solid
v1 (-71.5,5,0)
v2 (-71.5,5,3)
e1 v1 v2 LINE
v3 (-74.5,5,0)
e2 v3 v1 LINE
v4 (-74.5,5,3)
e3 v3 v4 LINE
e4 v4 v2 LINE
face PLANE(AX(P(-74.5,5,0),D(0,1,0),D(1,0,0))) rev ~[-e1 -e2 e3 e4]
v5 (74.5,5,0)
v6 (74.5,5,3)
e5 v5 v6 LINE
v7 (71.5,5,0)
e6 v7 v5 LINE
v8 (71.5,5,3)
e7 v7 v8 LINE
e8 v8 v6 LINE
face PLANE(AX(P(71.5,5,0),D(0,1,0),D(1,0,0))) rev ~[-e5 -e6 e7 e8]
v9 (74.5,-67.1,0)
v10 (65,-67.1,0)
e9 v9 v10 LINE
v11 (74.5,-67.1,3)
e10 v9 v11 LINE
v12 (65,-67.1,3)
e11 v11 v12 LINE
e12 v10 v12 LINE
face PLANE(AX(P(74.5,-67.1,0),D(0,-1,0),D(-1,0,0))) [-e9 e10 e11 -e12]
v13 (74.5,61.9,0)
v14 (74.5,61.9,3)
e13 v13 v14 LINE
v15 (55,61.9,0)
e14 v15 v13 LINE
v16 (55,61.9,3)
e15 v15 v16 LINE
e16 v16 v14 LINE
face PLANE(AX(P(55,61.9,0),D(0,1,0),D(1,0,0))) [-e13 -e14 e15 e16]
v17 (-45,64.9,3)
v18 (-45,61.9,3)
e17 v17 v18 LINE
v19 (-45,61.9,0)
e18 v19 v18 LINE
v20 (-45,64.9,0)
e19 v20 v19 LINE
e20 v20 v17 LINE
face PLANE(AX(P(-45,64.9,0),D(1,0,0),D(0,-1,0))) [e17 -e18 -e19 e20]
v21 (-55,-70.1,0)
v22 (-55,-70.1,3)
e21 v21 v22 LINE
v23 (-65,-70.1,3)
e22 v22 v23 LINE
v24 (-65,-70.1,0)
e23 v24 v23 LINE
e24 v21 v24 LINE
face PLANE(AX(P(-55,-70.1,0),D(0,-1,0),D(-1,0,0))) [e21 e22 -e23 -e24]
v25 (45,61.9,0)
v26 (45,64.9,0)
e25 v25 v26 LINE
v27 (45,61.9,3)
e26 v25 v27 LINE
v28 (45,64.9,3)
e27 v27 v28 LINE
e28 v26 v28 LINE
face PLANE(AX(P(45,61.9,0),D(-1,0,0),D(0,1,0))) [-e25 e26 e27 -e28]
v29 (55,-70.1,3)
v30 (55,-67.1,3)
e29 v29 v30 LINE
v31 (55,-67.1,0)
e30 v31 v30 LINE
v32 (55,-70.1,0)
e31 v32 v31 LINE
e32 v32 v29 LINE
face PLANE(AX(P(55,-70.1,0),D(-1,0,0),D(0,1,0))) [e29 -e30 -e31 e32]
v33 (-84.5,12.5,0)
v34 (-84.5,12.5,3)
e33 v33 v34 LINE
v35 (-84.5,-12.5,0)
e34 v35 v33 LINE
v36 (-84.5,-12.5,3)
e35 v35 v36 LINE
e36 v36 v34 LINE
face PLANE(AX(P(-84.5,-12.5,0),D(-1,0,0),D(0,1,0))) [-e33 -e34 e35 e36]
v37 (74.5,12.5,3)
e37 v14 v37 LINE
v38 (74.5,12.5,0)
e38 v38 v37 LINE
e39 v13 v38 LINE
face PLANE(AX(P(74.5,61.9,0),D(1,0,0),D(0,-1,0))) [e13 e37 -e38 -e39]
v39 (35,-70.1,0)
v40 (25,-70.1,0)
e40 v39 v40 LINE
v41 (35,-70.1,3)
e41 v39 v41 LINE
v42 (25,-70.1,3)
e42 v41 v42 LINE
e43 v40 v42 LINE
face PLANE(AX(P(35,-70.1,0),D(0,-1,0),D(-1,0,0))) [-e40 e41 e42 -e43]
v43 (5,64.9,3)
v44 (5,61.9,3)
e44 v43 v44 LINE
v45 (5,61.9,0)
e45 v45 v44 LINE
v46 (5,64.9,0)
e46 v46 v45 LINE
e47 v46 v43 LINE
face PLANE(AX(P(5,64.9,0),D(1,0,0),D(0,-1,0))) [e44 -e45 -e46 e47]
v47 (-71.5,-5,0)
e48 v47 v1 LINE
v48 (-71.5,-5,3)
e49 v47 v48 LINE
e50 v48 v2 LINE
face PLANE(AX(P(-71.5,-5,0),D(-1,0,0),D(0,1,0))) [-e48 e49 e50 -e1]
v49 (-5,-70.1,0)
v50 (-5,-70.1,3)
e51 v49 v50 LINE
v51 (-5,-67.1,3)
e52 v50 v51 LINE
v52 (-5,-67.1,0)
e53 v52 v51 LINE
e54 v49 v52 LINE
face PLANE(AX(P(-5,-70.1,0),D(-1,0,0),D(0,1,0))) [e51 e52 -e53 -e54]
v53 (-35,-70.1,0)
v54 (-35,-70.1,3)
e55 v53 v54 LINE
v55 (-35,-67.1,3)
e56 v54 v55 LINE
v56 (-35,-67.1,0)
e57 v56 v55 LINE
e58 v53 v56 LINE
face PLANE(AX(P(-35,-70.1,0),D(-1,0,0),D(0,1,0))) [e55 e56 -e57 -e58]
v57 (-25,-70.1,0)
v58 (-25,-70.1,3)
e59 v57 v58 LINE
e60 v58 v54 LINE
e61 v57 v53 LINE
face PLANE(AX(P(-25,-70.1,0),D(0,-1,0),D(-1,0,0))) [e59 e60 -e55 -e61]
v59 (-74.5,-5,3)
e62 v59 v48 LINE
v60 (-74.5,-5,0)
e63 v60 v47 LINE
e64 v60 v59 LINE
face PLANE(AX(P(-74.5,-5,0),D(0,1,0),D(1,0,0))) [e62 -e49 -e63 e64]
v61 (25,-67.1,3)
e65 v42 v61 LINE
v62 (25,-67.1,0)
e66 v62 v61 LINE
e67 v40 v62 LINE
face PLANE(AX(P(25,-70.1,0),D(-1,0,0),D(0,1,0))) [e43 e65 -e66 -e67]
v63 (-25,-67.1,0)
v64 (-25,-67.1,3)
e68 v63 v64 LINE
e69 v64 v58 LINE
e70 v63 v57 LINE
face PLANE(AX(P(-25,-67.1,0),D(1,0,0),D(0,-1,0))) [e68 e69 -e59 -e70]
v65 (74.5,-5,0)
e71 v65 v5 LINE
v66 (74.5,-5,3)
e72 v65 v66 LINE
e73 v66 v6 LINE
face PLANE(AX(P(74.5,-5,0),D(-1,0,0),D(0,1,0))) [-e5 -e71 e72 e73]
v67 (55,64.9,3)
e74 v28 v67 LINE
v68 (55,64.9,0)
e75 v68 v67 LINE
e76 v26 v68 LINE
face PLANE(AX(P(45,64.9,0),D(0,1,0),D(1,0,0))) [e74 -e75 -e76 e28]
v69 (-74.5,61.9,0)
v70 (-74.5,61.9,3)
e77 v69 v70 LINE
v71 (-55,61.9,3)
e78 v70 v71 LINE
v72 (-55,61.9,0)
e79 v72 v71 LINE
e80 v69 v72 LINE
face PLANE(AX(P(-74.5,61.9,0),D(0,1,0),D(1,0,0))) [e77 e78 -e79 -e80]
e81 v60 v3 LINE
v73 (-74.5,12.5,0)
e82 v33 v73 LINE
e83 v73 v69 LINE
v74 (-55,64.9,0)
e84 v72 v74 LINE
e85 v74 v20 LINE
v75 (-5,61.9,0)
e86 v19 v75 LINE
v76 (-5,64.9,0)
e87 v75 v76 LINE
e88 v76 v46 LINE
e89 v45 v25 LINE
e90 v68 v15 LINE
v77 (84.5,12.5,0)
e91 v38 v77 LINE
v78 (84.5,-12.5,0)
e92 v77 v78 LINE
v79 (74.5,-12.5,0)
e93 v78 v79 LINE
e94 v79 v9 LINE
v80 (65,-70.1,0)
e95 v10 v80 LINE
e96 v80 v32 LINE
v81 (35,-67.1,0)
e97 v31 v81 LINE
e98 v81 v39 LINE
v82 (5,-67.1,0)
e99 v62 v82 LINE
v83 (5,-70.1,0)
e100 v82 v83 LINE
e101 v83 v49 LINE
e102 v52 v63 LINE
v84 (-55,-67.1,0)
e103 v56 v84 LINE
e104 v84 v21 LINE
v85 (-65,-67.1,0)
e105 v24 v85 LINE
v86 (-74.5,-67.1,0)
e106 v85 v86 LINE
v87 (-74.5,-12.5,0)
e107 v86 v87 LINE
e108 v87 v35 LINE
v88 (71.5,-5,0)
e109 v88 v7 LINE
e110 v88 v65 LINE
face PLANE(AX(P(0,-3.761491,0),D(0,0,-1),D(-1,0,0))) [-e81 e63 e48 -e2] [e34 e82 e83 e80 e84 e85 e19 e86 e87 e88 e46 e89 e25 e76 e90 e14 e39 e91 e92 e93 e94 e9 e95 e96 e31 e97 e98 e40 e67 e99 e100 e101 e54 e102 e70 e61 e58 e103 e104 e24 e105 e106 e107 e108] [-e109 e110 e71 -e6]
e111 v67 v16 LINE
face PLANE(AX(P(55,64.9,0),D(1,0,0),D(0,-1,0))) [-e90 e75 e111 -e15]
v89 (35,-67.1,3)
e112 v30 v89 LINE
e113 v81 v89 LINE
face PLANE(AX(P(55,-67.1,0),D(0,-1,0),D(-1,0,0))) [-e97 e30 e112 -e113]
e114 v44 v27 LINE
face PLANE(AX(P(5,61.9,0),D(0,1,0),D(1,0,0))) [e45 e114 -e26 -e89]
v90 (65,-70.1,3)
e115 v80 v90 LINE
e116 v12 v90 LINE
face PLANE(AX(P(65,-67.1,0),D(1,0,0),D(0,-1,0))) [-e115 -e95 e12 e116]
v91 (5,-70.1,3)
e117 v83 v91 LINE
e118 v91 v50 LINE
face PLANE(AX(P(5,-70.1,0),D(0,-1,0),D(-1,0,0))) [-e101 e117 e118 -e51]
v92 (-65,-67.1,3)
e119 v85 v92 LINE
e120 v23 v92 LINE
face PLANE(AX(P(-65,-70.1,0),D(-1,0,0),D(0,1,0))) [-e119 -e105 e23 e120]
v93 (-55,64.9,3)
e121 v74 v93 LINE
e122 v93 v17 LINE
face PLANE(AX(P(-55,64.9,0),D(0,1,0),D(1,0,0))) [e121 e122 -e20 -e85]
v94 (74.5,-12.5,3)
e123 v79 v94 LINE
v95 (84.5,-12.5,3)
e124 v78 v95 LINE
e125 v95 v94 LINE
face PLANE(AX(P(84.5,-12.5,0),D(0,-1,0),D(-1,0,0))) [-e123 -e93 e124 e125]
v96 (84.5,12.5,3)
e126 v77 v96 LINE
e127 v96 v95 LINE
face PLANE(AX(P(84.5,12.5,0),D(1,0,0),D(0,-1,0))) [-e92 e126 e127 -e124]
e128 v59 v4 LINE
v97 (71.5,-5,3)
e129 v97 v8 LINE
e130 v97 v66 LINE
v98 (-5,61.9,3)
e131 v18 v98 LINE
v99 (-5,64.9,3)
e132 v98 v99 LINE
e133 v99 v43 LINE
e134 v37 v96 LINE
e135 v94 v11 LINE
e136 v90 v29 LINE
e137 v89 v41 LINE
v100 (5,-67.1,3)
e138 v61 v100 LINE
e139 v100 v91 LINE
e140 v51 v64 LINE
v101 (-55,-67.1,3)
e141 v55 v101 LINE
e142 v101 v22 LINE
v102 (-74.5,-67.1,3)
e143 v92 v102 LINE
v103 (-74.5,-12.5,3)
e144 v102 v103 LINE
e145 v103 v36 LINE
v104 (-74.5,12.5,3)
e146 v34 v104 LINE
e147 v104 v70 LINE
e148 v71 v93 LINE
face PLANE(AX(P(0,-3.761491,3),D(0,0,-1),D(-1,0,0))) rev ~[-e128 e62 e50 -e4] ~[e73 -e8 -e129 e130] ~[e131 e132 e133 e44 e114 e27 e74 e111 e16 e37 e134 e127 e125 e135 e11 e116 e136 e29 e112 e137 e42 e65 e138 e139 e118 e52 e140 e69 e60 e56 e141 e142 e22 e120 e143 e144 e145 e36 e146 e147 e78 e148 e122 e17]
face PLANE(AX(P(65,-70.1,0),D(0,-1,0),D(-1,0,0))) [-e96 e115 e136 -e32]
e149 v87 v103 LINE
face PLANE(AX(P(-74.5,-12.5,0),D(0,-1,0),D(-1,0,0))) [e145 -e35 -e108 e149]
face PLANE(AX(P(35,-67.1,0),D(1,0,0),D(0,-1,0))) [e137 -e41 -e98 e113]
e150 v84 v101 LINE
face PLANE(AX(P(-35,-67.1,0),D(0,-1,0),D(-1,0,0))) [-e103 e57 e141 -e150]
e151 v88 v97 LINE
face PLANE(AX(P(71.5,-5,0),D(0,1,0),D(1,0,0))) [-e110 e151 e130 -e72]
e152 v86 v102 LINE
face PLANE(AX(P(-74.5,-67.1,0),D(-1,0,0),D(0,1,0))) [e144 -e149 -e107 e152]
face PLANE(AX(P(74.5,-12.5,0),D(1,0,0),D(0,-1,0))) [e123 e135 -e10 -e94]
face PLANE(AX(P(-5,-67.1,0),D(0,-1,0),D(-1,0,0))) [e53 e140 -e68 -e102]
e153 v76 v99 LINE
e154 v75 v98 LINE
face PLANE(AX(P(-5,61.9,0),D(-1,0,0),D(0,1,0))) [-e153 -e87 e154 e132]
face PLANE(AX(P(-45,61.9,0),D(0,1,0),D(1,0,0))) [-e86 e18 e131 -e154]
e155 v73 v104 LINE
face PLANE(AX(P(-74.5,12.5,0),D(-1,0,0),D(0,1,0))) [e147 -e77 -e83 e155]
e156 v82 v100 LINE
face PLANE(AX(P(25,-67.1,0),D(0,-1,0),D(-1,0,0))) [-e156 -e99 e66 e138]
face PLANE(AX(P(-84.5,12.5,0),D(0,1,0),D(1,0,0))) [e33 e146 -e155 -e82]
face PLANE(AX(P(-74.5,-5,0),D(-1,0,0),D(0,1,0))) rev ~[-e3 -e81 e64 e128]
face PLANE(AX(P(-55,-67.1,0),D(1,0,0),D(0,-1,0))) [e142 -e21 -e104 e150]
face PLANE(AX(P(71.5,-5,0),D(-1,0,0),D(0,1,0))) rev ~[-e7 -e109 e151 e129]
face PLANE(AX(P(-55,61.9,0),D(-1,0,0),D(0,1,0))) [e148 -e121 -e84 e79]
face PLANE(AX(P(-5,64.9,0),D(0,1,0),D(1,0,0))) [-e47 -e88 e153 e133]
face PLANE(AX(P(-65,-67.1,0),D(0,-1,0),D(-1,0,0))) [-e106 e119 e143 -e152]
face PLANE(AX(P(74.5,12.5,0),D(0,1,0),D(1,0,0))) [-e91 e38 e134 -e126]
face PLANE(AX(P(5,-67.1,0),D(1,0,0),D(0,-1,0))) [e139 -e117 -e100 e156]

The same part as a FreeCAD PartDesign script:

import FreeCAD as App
import Part
import Sketcher

V = App.Vector
Q = App.Units.Quantity

doc = App.newDocument("Part")
params = doc.addObject("Spreadsheet::Sheet", "Params")
for row, (alias, value) in enumerate([
    ("sketch1_width", "10 mm"),
    ("sketch1_width2", "20 mm"),
    ("sketch1_width3", "3 mm"),
    ("sketch1_height", "25 mm"),
    ("sketch1_width4", "19.5 mm"),
    ("pad1_length", "3 mm"),
], start=1):
    params.set(f"A{row}", alias)
    params.set(f"B{row}", "=" + value)
    params.setAlias(f"B{row}", alias)

body = doc.addObject("PartDesign::Body", "Body")

# Sketch on XY plane
sketch1 = body.newObject("Sketcher::SketchObject", "Sketch")
sketch1.AttachmentSupport = (doc.getObject("XY_Plane"), [""])
sketch1.MapMode = "FlatFace"
sketch1.addGeometry([
    Part.LineSegment(V(-55, 61.9, 0), V(-74.5, 61.9, 0)),  # 0
    Part.LineSegment(V(-74.5, 61.9, 0), V(-74.5, 12.5, 0)),  # 1
    Part.LineSegment(V(-74.5, 12.5, 0), V(-84.5, 12.5, 0)),  # 2
    Part.LineSegment(V(-84.5, 12.5, 0), V(-84.5, -12.5, 0)),  # 3
    Part.LineSegment(V(-84.5, -12.5, 0), V(-74.5, -12.5, 0)),  # 4
    Part.LineSegment(V(-74.5, -12.5, 0), V(-74.5, -67.1, 0)),  # 5
    Part.LineSegment(V(-74.5, -67.1, 0), V(-65, -67.1, 0)),  # 6
    Part.LineSegment(V(-65, -67.1, 0), V(-65, -70.1, 0)),  # 7
    Part.LineSegment(V(-65, -70.1, 0), V(-55, -70.1, 0)),  # 8
    Part.LineSegment(V(-55, -70.1, 0), V(-55, -67.1, 0)),  # 9
    Part.LineSegment(V(-55, -67.1, 0), V(-35, -67.1, 0)),  # 10
    Part.LineSegment(V(-35, -67.1, 0), V(-35, -70.1, 0)),  # 11
    Part.LineSegment(V(-35, -70.1, 0), V(-25, -70.1, 0)),  # 12
    Part.LineSegment(V(-25, -70.1, 0), V(-25, -67.1, 0)),  # 13
    Part.LineSegment(V(-25, -67.1, 0), V(-5, -67.1, 0)),  # 14
    Part.LineSegment(V(-5, -67.1, 0), V(-5, -70.1, 0)),  # 15
    Part.LineSegment(V(-5, -70.1, 0), V(5, -70.1, 0)),  # 16
    Part.LineSegment(V(5, -70.1, 0), V(5, -67.1, 0)),  # 17
    Part.LineSegment(V(5, -67.1, 0), V(25, -67.1, 0)),  # 18
    Part.LineSegment(V(25, -67.1, 0), V(25, -70.1, 0)),  # 19
    Part.LineSegment(V(25, -70.1, 0), V(35, -70.1, 0)),  # 20
    Part.LineSegment(V(35, -70.1, 0), V(35, -67.1, 0)),  # 21
    Part.LineSegment(V(35, -67.1, 0), V(55, -67.1, 0)),  # 22
    Part.LineSegment(V(55, -67.1, 0), V(55, -70.1, 0)),  # 23
    Part.LineSegment(V(55, -70.1, 0), V(65, -70.1, 0)),  # 24
    Part.LineSegment(V(65, -70.1, 0), V(65, -67.1, 0)),  # 25
    Part.LineSegment(V(65, -67.1, 0), V(74.5, -67.1, 0)),  # 26
    Part.LineSegment(V(74.5, -67.1, 0), V(74.5, -12.5, 0)),  # 27
    Part.LineSegment(V(74.5, -12.5, 0), V(84.5, -12.5, 0)),  # 28
    Part.LineSegment(V(84.5, -12.5, 0), V(84.5, 12.5, 0)),  # 29
    Part.LineSegment(V(84.5, 12.5, 0), V(74.5, 12.5, 0)),  # 30
    Part.LineSegment(V(74.5, 12.5, 0), V(74.5, 61.9, 0)),  # 31
    Part.LineSegment(V(74.5, 61.9, 0), V(55, 61.9, 0)),  # 32
    Part.LineSegment(V(55, 61.9, 0), V(55, 64.9, 0)),  # 33
    Part.LineSegment(V(55, 64.9, 0), V(45, 64.9, 0)),  # 34
    Part.LineSegment(V(45, 64.9, 0), V(45, 61.9, 0)),  # 35
    Part.LineSegment(V(45, 61.9, 0), V(5, 61.9, 0)),  # 36
    Part.LineSegment(V(5, 61.9, 0), V(5, 64.9, 0)),  # 37
    Part.LineSegment(V(5, 64.9, 0), V(-5, 64.9, 0)),  # 38
    Part.LineSegment(V(-5, 64.9, 0), V(-5, 61.9, 0)),  # 39
    Part.LineSegment(V(-5, 61.9, 0), V(-45, 61.9, 0)),  # 40
    Part.LineSegment(V(-45, 61.9, 0), V(-45, 64.9, 0)),  # 41
    Part.LineSegment(V(-45, 64.9, 0), V(-55, 64.9, 0)),  # 42
    Part.LineSegment(V(-55, 64.9, 0), V(-55, 61.9, 0)),  # 43
    Part.LineSegment(V(71.5, -5, 0), V(71.5, 5, 0)),  # 44
    Part.LineSegment(V(71.5, 5, 0), V(74.5, 5, 0)),  # 45
    Part.LineSegment(V(74.5, 5, 0), V(74.5, -5, 0)),  # 46
    Part.LineSegment(V(74.5, -5, 0), V(71.5, -5, 0)),  # 47
    Part.LineSegment(V(-74.5, -5, 0), V(-74.5, 5, 0)),  # 48
    Part.LineSegment(V(-74.5, 5, 0), V(-71.5, 5, 0)),  # 49
    Part.LineSegment(V(-71.5, 5, 0), V(-71.5, -5, 0)),  # 50
    Part.LineSegment(V(-71.5, -5, 0), V(-74.5, -5, 0)),  # 51
], False)
sketch1.addConstraint([
    Sketcher.Constraint("Coincident", 0, 2, 1, 1),
    Sketcher.Constraint("Coincident", 1, 2, 2, 1),
    Sketcher.Constraint("Coincident", 2, 2, 3, 1),
    Sketcher.Constraint("Coincident", 3, 2, 4, 1),
    Sketcher.Constraint("Coincident", 4, 2, 5, 1),
    Sketcher.Constraint("Coincident", 5, 2, 6, 1),
    Sketcher.Constraint("Coincident", 6, 2, 7, 1),
    Sketcher.Constraint("Coincident", 7, 2, 8, 1),
    Sketcher.Constraint("Coincident", 8, 2, 9, 1),
    Sketcher.Constraint("Coincident", 9, 2, 10, 1),
    Sketcher.Constraint("Coincident", 10, 2, 11, 1),
    Sketcher.Constraint("Coincident", 11, 2, 12, 1),
    Sketcher.Constraint("Coincident", 12, 2, 13, 1),
    Sketcher.Constraint("Coincident", 13, 2, 14, 1),
    Sketcher.Constraint("Coincident", 14, 2, 15, 1),
    Sketcher.Constraint("Coincident", 15, 2, 16, 1),
    Sketcher.Constraint("Coincident", 16, 2, 17, 1),
    Sketcher.Constraint("Coincident", 17, 2, 18, 1),
    Sketcher.Constraint("Coincident", 18, 2, 19, 1),
    Sketcher.Constraint("Coincident", 19, 2, 20, 1),
    Sketcher.Constraint("Coincident", 20, 2, 21, 1),
    Sketcher.Constraint("Coincident", 21, 2, 22, 1),
    Sketcher.Constraint("Coincident", 22, 2, 23, 1),
    Sketcher.Constraint("Coincident", 23, 2, 24, 1),
    Sketcher.Constraint("Coincident", 24, 2, 25, 1),
    Sketcher.Constraint("Coincident", 25, 2, 26, 1),
    Sketcher.Constraint("Coincident", 26, 2, 27, 1),
    Sketcher.Constraint("Coincident", 27, 2, 28, 1),
    Sketcher.Constraint("Coincident", 28, 2, 29, 1),
    Sketcher.Constraint("Coincident", 29, 2, 30, 1),
    Sketcher.Constraint("Coincident", 30, 2, 31, 1),
    Sketcher.Constraint("Coincident", 31, 2, 32, 1),
    Sketcher.Constraint("Coincident", 32, 2, 33, 1),
    Sketcher.Constraint("Coincident", 33, 2, 34, 1),
    Sketcher.Constraint("Coincident", 34, 2, 35, 1),
    Sketcher.Constraint("Coincident", 35, 2, 36, 1),
    Sketcher.Constraint("Coincident", 36, 2, 37, 1),
    Sketcher.Constraint("Coincident", 37, 2, 38, 1),
    Sketcher.Constraint("Coincident", 38, 2, 39, 1),
    Sketcher.Constraint("Coincident", 39, 2, 40, 1),
    Sketcher.Constraint("Coincident", 40, 2, 41, 1),
    Sketcher.Constraint("Coincident", 41, 2, 42, 1),
    Sketcher.Constraint("Coincident", 42, 2, 43, 1),
    Sketcher.Constraint("Coincident", 43, 2, 0, 1),
    Sketcher.Constraint("Coincident", 44, 2, 45, 1),
    Sketcher.Constraint("Coincident", 45, 2, 46, 1),
    Sketcher.Constraint("Coincident", 46, 2, 47, 1),
    Sketcher.Constraint("Coincident", 47, 2, 44, 1),
    Sketcher.Constraint("Coincident", 48, 2, 49, 1),
    Sketcher.Constraint("Coincident", 49, 2, 50, 1),
    Sketcher.Constraint("Coincident", 50, 2, 51, 1),
    Sketcher.Constraint("Coincident", 51, 2, 48, 1),
    Sketcher.Constraint("Horizontal", 0),
    Sketcher.Constraint("Vertical", 1),
    Sketcher.Constraint("Horizontal", 2),
    Sketcher.Constraint("Vertical", 3),
    Sketcher.Constraint("Horizontal", 4),
    Sketcher.Constraint("Vertical", 5),
    Sketcher.Constraint("Horizontal", 6),
    Sketcher.Constraint("Vertical", 7),
    Sketcher.Constraint("Horizontal", 8),
    Sketcher.Constraint("Vertical", 9),
    Sketcher.Constraint("Horizontal", 10),
    Sketcher.Constraint("Vertical", 11),
    Sketcher.Constraint("Horizontal", 12),
    Sketcher.Constraint("Vertical", 13),
    Sketcher.Constraint("Horizontal", 14),
    Sketcher.Constraint("Vertical", 15),
    Sketcher.Constraint("Horizontal", 16),
    Sketcher.Constraint("Vertical", 17),
    Sketcher.Constraint("Horizontal", 18),
    Sketcher.Constraint("Vertical", 19),
    Sketcher.Constraint("Horizontal", 20),
    Sketcher.Constraint("Vertical", 21),
    Sketcher.Constraint("Horizontal", 22),
    Sketcher.Constraint("Vertical", 23),
    Sketcher.Constraint("Horizontal", 24),
    Sketcher.Constraint("Vertical", 25),
    Sketcher.Constraint("Horizontal", 26),
    Sketcher.Constraint("Vertical", 27),
    Sketcher.Constraint("Horizontal", 28),
    Sketcher.Constraint("Vertical", 29),
    Sketcher.Constraint("Horizontal", 30),
    Sketcher.Constraint("Vertical", 31),
    Sketcher.Constraint("Horizontal", 32),
    Sketcher.Constraint("Vertical", 33),
    Sketcher.Constraint("Horizontal", 34),
    Sketcher.Constraint("Vertical", 35),
    Sketcher.Constraint("Horizontal", 36),
    Sketcher.Constraint("Vertical", 37),
    Sketcher.Constraint("Horizontal", 38),
    Sketcher.Constraint("Vertical", 39),
    Sketcher.Constraint("Horizontal", 40),
    Sketcher.Constraint("Vertical", 41),
    Sketcher.Constraint("Horizontal", 42),
    Sketcher.Constraint("Vertical", 43),
    Sketcher.Constraint("Vertical", 44),
    Sketcher.Constraint("Horizontal", 45),
    Sketcher.Constraint("Vertical", 46),
    Sketcher.Constraint("Horizontal", 47),
    Sketcher.Constraint("Vertical", 48),
    Sketcher.Constraint("Horizontal", 49),
    Sketcher.Constraint("Vertical", 50),
    Sketcher.Constraint("Horizontal", 51),
    Sketcher.Constraint("Symmetric", 1, 2, 27, 2, -1, 1),
    Sketcher.Constraint("Symmetric", 3, 2, 29, 2, -1, 1),
    Sketcher.Constraint("Symmetric", 46, 2, 48, 2, -1, 1),
    Sketcher.Constraint("Symmetric", 44, 2, 50, 2, -1, 1),
    Sketcher.Constraint("Symmetric", 14, 2, 17, 2, -2),
    Sketcher.Constraint("Symmetric", 12, 2, 19, 2, -2),
    Sketcher.Constraint("Symmetric", 10, 2, 21, 2, -2),
    Sketcher.Constraint("Symmetric", 8, 2, 23, 2, -2),
    Sketcher.Constraint("Symmetric", 6, 2, 25, 2, -2),
    Sketcher.Constraint("Symmetric", 4, 2, 27, 2, -2),
    Sketcher.Constraint("Symmetric", 0, 2, 31, 2, -2),
    Sketcher.Constraint("Symmetric", 36, 2, 39, 2, -2),
    Sketcher.Constraint("Symmetric", 34, 2, 41, 2, -2),
    Sketcher.Constraint("Horizontal", 6, 2, 9, 2),
    Sketcher.Constraint("Horizontal", 8, 2, 11, 2),
    Sketcher.Constraint("Horizontal", 10, 2, 13, 2),
    Sketcher.Constraint("Horizontal", 12, 2, 15, 2),
    Sketcher.Constraint("Horizontal", 32, 2, 35, 2),
    Sketcher.Constraint("Horizontal", 34, 2, 37, 2),
    Sketcher.Constraint("Horizontal", 45, 2, 48, 2),
    Sketcher.Constraint("Vertical", 23, 2, 32, 2),
    Sketcher.Constraint("Vertical", 17, 2, 36, 2),
    Sketcher.Constraint("Vertical", 9, 2, 42, 2),
    Sketcher.Constraint("Vertical", 31, 2, 45, 2),
    Sketcher.Constraint("Equal", 4, 8),
    Sketcher.Constraint("Equal", 8, 12),
    Sketcher.Constraint("Equal", 10, 14),
    Sketcher.Constraint("Equal", 12, 16),
    Sketcher.Constraint("Equal", 30, 34),
    Sketcher.Constraint("Equal", 51, 7),
    Sketcher.Constraint("Equal", 25, 33),
    Sketcher.Constraint("Equal", 42, 44),
    Sketcher.Constraint("DistanceX", 2, 2, 2, 1, Q("10 mm")),
    Sketcher.Constraint("DistanceX", 10, 1, 10, 2, Q("20 mm")),
    Sketcher.Constraint("DistanceX", 45, 1, 45, 2, Q("3 mm")),
    Sketcher.Constraint("DistanceY", 3, 2, 3, 1, Q("25 mm")),
    Sketcher.Constraint("DistanceX", 0, 2, 0, 1, Q("19.5 mm")),
    Sketcher.Constraint("DistanceY", 1, 2, 1, 1, Q("49.4 mm")),
    Sketcher.Constraint("DistanceY", 5, 2, 5, 1, Q("54.6 mm")),
])
sketch1.setExpression("Constraints[136]", "Params.sketch1_width")
sketch1.setExpression("Constraints[137]", "Params.sketch1_width2")
sketch1.setExpression("Constraints[138]", "Params.sketch1_width3")
sketch1.setExpression("Constraints[139]", "Params.sketch1_height")
sketch1.setExpression("Constraints[140]", "Params.sketch1_width4")
pad1 = body.newObject("PartDesign::Pad", "Pad")
pad1.Profile = sketch1
pad1.setExpression("Length", "Params.pad1_length")

doc.recompute()
